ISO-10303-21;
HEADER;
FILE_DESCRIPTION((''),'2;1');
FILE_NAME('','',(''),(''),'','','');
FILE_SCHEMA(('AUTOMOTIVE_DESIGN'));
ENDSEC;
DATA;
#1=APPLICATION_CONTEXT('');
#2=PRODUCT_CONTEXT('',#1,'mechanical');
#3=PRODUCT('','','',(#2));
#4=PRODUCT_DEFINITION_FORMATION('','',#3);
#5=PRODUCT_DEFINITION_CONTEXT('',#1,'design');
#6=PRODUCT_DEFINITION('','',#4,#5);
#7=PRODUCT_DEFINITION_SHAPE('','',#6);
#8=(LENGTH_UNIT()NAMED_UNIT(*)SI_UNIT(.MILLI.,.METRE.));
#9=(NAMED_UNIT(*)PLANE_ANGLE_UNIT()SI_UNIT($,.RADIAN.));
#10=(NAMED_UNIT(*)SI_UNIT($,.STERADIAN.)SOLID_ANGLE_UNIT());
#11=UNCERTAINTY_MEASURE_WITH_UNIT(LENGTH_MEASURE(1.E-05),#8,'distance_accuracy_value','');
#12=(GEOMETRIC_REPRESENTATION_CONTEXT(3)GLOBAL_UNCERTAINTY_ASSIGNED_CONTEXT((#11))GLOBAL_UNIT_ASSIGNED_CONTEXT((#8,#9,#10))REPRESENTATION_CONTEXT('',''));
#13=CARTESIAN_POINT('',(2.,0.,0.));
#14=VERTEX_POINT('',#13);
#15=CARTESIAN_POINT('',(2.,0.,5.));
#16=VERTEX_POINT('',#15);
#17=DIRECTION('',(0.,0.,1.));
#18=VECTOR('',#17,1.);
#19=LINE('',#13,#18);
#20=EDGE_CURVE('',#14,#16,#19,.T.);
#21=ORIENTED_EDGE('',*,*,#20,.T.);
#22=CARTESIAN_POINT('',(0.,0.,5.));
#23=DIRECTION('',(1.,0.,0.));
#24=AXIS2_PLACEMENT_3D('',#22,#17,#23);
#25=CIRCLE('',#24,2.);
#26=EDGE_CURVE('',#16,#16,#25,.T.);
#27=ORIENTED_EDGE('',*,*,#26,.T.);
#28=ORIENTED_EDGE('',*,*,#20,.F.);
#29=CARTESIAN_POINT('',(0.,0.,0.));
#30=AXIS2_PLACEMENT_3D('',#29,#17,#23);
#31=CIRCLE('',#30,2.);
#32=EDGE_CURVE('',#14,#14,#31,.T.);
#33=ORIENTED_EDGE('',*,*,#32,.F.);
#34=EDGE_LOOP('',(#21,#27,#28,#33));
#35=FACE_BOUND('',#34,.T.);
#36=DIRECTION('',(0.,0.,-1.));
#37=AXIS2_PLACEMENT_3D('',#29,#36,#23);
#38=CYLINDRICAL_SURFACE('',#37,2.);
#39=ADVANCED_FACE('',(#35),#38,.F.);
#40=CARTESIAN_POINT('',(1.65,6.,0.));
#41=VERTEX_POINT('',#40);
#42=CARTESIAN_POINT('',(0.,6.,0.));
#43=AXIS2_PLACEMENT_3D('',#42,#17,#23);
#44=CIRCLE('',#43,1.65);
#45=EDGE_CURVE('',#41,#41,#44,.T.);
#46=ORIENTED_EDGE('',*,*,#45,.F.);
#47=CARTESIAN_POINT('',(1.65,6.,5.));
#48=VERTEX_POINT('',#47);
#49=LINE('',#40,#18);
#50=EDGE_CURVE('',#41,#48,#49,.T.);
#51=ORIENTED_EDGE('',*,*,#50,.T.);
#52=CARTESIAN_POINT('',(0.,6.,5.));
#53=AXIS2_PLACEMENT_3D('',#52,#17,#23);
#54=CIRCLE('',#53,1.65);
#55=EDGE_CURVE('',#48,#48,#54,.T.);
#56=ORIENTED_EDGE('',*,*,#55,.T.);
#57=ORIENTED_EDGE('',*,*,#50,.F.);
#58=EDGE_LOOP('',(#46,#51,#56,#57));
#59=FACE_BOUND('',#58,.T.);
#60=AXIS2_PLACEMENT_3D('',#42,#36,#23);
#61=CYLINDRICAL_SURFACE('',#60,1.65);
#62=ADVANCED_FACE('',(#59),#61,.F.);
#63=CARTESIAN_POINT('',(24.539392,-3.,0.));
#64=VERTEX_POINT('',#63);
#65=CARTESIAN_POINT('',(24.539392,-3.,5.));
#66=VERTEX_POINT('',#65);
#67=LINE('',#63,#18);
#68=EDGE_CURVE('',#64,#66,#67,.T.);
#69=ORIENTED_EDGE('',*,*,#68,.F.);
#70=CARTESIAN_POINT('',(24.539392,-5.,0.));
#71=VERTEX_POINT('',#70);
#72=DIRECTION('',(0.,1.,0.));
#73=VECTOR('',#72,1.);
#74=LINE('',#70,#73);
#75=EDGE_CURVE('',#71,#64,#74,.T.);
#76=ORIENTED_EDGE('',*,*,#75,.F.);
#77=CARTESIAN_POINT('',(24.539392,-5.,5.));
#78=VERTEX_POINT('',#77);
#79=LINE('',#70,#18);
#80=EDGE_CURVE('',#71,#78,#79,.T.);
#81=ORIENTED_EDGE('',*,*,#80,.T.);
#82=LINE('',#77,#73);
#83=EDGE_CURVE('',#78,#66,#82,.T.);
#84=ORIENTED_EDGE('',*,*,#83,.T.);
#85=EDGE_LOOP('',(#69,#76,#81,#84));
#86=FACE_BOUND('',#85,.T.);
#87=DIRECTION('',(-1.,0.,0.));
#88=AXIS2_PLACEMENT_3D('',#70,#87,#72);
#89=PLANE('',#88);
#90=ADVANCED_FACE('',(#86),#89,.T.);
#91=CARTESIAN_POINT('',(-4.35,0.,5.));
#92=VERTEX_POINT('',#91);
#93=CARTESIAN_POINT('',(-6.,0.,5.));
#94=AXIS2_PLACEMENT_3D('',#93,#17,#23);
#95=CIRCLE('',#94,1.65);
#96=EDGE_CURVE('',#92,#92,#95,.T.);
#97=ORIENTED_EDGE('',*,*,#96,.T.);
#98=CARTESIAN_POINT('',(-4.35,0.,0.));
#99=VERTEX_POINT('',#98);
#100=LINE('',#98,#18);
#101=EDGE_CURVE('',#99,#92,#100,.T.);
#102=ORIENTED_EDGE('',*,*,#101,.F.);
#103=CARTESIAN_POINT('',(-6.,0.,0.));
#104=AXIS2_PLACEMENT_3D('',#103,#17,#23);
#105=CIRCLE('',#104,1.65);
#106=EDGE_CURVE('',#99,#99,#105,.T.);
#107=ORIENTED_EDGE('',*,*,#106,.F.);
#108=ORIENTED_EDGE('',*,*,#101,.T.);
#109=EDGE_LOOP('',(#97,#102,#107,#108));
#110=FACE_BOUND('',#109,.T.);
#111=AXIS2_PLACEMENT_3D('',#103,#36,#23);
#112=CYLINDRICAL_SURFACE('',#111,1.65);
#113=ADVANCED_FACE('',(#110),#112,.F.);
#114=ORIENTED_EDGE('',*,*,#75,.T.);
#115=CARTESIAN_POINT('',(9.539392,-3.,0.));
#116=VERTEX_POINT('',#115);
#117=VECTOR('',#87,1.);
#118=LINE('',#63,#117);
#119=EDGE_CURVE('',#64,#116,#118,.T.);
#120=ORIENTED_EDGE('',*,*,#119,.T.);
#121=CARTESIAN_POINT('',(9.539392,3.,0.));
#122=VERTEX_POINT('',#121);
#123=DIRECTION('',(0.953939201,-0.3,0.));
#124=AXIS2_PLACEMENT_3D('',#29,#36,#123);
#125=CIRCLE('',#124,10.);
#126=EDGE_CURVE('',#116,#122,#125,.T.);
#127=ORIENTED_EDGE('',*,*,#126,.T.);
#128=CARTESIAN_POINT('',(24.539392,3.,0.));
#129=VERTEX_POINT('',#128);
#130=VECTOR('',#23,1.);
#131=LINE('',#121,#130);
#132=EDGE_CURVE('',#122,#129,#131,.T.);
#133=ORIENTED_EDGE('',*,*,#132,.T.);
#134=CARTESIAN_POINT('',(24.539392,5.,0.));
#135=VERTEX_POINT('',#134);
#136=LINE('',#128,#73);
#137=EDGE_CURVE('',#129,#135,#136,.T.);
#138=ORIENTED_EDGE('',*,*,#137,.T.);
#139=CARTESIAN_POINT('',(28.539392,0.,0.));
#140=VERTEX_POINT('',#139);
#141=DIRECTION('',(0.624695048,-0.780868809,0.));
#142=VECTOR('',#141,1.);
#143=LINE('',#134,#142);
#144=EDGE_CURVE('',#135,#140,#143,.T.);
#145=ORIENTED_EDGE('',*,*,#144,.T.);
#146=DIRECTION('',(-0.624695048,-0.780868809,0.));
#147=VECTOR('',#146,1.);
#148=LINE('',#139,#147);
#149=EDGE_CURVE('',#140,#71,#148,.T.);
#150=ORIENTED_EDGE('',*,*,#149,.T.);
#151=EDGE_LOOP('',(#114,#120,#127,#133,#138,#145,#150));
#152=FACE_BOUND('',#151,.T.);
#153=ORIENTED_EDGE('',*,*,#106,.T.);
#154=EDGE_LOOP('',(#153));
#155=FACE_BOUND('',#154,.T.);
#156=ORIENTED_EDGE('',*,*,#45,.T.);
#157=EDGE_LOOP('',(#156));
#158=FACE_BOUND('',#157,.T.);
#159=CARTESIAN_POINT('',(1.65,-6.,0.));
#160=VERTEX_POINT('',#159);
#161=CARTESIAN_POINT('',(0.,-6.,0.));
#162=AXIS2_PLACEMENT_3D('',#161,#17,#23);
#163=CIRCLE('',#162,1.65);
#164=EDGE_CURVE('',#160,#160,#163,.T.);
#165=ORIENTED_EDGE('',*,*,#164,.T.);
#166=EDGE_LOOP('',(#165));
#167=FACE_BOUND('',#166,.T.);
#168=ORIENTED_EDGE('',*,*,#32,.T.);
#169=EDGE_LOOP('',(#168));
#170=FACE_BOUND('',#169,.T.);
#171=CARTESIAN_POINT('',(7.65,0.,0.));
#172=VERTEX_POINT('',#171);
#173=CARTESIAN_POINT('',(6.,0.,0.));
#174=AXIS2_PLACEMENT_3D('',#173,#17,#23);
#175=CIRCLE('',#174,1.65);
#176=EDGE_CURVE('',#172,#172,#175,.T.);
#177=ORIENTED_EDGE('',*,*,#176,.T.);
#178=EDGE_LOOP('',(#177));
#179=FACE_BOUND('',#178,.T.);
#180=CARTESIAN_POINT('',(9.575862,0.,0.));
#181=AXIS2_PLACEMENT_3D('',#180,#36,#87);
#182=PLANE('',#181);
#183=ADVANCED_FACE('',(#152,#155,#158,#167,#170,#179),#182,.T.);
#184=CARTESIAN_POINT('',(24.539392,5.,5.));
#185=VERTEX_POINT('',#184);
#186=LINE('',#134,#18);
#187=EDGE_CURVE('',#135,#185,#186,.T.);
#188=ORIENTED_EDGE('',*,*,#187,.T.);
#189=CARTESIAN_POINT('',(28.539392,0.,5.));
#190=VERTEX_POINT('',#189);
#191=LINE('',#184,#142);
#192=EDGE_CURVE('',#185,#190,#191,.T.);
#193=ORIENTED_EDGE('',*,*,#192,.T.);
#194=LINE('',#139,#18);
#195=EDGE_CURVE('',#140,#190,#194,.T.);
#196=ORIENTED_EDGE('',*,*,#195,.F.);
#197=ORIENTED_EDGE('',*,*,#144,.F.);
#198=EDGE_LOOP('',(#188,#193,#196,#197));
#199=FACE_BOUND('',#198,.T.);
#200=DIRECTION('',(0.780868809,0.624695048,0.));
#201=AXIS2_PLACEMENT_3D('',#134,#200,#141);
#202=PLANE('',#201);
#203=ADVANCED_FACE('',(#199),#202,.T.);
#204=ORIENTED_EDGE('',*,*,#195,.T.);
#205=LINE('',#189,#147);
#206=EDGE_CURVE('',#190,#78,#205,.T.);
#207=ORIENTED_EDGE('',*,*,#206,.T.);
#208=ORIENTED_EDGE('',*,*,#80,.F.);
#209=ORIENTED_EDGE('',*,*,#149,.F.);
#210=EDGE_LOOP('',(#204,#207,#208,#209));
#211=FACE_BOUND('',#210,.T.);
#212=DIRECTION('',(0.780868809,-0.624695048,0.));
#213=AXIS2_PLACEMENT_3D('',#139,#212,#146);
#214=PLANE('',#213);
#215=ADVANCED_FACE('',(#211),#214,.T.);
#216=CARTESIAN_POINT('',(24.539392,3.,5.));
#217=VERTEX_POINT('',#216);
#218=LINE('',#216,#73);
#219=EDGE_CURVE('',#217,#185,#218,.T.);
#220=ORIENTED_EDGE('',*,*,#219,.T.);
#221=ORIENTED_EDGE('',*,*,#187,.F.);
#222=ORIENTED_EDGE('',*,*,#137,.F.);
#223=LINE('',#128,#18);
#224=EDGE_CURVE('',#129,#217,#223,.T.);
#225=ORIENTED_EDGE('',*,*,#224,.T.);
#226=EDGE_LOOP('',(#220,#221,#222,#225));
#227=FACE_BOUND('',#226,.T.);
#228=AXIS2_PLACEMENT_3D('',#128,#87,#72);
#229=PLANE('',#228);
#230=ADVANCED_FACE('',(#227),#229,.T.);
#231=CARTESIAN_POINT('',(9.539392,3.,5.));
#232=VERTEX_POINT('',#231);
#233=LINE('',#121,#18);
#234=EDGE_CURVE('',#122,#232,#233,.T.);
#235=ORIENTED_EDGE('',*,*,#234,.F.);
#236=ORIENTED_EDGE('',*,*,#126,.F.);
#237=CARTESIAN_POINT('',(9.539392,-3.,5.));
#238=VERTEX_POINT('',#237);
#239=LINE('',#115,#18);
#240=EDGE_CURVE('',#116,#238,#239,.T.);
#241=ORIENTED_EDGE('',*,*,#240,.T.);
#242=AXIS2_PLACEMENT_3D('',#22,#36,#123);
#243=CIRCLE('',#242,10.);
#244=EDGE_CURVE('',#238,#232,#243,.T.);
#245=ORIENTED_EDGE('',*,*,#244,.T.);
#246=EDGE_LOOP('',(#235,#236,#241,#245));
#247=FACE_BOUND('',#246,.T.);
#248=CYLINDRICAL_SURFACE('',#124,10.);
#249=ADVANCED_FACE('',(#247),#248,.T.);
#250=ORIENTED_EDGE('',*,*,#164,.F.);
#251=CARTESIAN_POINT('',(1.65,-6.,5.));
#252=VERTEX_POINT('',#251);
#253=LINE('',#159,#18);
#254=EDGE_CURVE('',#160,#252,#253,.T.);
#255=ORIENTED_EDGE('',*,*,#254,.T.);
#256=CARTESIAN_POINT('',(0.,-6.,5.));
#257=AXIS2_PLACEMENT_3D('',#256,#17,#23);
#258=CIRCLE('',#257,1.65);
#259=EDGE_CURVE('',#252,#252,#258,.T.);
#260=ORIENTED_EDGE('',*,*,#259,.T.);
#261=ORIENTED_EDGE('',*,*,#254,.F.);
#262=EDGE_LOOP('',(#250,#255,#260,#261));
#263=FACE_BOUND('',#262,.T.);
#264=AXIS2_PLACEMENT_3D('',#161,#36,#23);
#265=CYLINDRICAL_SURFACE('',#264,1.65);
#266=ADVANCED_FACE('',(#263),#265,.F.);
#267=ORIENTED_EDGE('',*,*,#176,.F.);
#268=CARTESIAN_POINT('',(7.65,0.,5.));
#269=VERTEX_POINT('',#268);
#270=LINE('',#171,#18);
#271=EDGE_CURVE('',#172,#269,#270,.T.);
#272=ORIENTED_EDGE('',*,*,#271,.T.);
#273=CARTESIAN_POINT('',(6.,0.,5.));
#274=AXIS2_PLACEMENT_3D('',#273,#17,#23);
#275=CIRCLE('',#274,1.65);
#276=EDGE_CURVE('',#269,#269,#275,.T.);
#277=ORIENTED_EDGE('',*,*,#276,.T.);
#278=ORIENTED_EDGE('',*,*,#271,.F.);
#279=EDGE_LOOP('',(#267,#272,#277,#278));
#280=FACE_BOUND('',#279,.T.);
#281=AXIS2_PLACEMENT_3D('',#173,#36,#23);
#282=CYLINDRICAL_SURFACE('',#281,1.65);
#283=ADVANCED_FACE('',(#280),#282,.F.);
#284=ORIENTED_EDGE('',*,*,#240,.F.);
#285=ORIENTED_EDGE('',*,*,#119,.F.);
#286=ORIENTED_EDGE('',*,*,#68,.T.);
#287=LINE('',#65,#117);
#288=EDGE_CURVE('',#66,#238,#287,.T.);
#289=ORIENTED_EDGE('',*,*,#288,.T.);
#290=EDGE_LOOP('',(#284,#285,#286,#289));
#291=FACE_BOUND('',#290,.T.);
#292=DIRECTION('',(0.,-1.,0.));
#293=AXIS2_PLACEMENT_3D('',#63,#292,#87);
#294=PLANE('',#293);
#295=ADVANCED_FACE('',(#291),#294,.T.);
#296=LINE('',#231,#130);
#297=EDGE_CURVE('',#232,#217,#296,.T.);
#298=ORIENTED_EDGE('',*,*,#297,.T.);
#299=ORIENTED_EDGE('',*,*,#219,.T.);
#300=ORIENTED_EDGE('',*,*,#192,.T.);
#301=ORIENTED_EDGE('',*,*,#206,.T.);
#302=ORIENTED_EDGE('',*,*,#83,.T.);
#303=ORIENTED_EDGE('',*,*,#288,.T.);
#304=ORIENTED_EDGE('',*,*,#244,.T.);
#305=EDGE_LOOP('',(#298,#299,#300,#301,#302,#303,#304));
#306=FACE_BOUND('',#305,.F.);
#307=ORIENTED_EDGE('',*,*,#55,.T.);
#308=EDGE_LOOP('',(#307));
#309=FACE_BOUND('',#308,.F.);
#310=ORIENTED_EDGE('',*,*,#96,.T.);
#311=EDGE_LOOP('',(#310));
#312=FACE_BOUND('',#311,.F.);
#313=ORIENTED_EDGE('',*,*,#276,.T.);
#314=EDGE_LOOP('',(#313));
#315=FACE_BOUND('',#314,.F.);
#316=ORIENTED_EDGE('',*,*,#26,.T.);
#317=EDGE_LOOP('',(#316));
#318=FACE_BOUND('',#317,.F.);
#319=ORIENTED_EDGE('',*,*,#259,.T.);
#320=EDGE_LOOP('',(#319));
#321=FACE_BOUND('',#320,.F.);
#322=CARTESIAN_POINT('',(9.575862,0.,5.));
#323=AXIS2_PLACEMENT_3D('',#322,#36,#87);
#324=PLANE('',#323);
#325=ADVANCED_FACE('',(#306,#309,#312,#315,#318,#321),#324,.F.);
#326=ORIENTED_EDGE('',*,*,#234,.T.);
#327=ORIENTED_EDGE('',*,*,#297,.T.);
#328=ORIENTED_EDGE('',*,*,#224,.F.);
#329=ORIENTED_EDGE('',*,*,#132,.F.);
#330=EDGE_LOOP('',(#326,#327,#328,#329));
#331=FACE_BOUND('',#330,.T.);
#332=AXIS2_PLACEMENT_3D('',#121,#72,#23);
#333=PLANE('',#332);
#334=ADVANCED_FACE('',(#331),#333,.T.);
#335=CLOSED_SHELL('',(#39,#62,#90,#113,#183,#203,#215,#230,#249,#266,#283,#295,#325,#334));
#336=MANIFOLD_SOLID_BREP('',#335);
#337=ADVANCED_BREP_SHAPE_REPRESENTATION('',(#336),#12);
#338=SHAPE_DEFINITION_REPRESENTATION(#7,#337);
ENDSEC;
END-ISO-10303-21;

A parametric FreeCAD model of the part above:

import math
import FreeCAD as App
import Part
import Sketcher
from FreeCAD import Vector

doc = App.newDocument("Part")
params = doc.addObject("Spreadsheet::Sheet", "Params")
for row, (alias, value) in enumerate([
    ("sketch1_diameter", "4 mm"),
    ("sketch1_radius", "10 mm"),
    ("sketch1_diameter2", "3.3 mm"),
    ("sketch1_width", "15 mm"),
    ("sketch1_height", "2 mm"),
    ("pad1_length", "5 mm"),
], start=1):
    params.set(f"A{row}", alias)
    params.set(f"B{row}", "=" + value)
    params.setAlias(f"B{row}", alias)

body = doc.addObject("PartDesign::Body", "Body")

# Sketch on XY plane
sketch1 = doc.addObject("Sketcher::SketchObject", "Sketch")
body.addObject(sketch1)
sketch1.AttachmentSupport = (doc.XY_Plane, [""])
sketch1.MapMode = "FlatFace"
sketch1.addGeometry([
    Part.LineSegment(Vector(24.5, 3, 0), Vector(9.5, 3, 0)),  # 0
    Part.ArcOfCircle(Part.Circle(Vector(0, 0, 0), Vector(0, 0, 1), 10), math.radians(17), math.radians(343)),  # 1
    Part.LineSegment(Vector(9.5, -3, 0), Vector(24.5, -3, 0)),  # 2
    Part.LineSegment(Vector(24.5, -3, 0), Vector(24.5, -5, 0)),  # 3
    Part.LineSegment(Vector(24.5, -5, 0), Vector(28.5, 0, 0)),  # 4
    Part.LineSegment(Vector(28.5, 0, 0), Vector(24.5, 5, 0)),  # 5
    Part.LineSegment(Vector(24.5, 5, 0), Vector(24.5, 3, 0)),  # 6
    Part.Circle(Vector(0, -6, 0), Vector(0, 0, 1), 1.6),  # 7
    Part.Circle(Vector(6, 0, 0), Vector(0, 0, 1), 1.6),  # 8
    Part.Circle(Vector(0, 0, 0), Vector(0, 0, 1), 2),  # 9
    Part.Circle(Vector(-6, 0, 0), Vector(0, 0, 1), 1.6),  # 10
    Part.Circle(Vector(0, 6, 0), Vector(0, 0, 1), 1.6),  # 11
], False)
sketch1.addConstraint([
    Sketcher.Constraint("Coincident", 0, 2, 1, 1),
    Sketcher.Constraint("Coincident", 1, 2, 2, 1),
    Sketcher.Constraint("Coincident", 2, 2, 3, 1),
    Sketcher.Constraint("Coincident", 3, 2, 4, 1),
    Sketcher.Constraint("Coincident", 4, 2, 5, 1),
    Sketcher.Constraint("Coincident", 5, 2, 6, 1),
    Sketcher.Constraint("Coincident", 6, 2, 0, 1),
    Sketcher.Constraint("Horizontal", 0),
    Sketcher.Constraint("Horizontal", 2),
    Sketcher.Constraint("Vertical", 3),
    Sketcher.Constraint("Vertical", 6),
    Sketcher.Constraint("Coincident", 1, 3, -1, 1),
    Sketcher.Constraint("Coincident", 9, 3, -1, 1),
    Sketcher.Constraint("Equal", 7, 8),
    Sketcher.Constraint("Equal", 8, 10),
    Sketcher.Constraint("Equal", 10, 11),
    Sketcher.Constraint("Symmetric", 8, 3, 10, 3, -1, 1),
    Sketcher.Constraint("Symmetric", 7, 3, 11, 3, -1, 1),
    Sketcher.Constraint("Symmetric", 3, 2, 5, 2, -1),
    Sketcher.Constraint("PointOnObject", 7, 3, -2),
    Sketcher.Constraint("PointOnObject", 8, 3, -1),
    Sketcher.Constraint("PointOnObject", 4, 2, -1),
    Sketcher.Constraint("Vertical", 0, 2, 1, 2),
    Sketcher.Constraint("Diameter", 9, 4.0),
    Sketcher.Constraint("Radius", 1, 10.0),
    Sketcher.Constraint("Diameter", 7, 3.3),
    Sketcher.Constraint("DistanceX", 0, 2, 0, 1, 15.0),
    Sketcher.Constraint("DistanceY", 3, 2, 3, 1, 2.0),
    Sketcher.Constraint("DistanceY", 7, 3, -1, 1, 6.0),
    Sketcher.Constraint("DistanceX", -1, 1, 8, 3, 6.0),
    Sketcher.Constraint("DistanceY", -1, 1, 0, 2, 3.0),
    Sketcher.Constraint("DistanceX", 2, 2, 4, 2, 4.0),
])
sketch1.setExpression("Constraints[23]", "Params.sketch1_diameter")
sketch1.setExpression("Constraints[24]", "Params.sketch1_radius")
sketch1.setExpression("Constraints[25]", "Params.sketch1_diameter2")
sketch1.setExpression("Constraints[26]", "Params.sketch1_width")
sketch1.setExpression("Constraints[27]", "Params.sketch1_height")
pad1 = doc.addObject("PartDesign::Pad", "Pad")
body.addObject(pad1)
pad1.Profile = sketch1
pad1.setExpression("Length", "Params.pad1_length")

doc.recompute()
